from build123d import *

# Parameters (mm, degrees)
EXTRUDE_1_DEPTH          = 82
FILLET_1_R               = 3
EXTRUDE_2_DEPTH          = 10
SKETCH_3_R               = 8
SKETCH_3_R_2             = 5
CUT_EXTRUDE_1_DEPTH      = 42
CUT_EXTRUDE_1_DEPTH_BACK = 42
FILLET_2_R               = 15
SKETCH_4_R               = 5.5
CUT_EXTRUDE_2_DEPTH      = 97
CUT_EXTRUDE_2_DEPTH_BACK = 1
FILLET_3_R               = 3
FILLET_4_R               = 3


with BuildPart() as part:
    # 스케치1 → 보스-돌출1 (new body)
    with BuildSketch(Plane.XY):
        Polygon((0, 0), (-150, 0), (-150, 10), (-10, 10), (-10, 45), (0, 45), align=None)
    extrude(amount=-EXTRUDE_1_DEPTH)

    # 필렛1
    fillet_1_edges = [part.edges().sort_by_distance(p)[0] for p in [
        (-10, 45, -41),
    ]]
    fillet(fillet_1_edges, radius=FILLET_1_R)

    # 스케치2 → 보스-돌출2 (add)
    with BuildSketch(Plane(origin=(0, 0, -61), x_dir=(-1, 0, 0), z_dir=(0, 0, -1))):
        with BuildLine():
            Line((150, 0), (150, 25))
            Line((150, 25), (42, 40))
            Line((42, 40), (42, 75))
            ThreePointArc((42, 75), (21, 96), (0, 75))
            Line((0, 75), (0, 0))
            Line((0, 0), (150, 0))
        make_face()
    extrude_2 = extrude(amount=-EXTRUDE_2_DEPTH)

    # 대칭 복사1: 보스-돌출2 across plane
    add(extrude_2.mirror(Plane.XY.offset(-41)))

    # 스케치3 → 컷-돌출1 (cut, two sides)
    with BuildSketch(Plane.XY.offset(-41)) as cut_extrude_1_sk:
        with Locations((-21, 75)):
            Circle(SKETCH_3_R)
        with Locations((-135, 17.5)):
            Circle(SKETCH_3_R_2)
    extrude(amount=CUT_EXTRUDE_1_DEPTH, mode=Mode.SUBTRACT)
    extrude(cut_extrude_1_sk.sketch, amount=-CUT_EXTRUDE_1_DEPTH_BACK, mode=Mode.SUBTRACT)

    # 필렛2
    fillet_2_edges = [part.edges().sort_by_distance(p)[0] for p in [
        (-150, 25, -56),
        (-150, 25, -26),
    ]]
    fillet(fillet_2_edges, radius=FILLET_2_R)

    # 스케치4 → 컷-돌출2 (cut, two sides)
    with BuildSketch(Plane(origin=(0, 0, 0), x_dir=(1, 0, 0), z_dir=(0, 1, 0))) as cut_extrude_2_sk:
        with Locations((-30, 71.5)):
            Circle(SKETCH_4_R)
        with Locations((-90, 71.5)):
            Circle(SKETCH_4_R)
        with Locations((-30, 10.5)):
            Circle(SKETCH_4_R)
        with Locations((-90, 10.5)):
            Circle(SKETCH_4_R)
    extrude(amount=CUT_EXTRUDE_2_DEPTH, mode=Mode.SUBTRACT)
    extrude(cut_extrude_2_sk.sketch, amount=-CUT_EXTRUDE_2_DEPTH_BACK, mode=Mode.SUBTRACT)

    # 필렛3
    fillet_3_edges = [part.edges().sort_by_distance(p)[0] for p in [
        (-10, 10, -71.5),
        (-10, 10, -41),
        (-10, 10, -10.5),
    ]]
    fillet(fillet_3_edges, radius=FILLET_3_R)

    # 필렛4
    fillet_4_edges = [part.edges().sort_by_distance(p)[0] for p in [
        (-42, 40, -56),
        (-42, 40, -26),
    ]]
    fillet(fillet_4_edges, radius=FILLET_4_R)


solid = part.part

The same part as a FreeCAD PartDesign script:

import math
import FreeCAD as App
import Part
import Sketcher

V = App.Vector


def edges_at(feature, points):
    """Names of the edges that pass closest to the given points."""
    edges = feature.Shape.Edges
    near = lambda p: min(range(len(edges)), key=lambda i: edges[i].distToShape(Part.Vertex(*p))[0])
    return sorted({f"Edge{near(p) + 1}" for p in points})


def add_polygon(sketch, points):
    """Adds a closed chain of lines whose ends are joined by coincident constraints."""
    first, n = sketch.GeometryCount, len(points)
    for a, b in zip(points, points[1:] + points[:1]):
        sketch.addGeometry(Part.LineSegment(App.Vector(*a, 0), App.Vector(*b, 0)), False)
    for i in range(n):
        sketch.addConstraint(Sketcher.Constraint("Coincident", first + i, 2, first + (i + 1) % n, 1))

doc = App.newDocument("Part")
params = doc.addObject("Spreadsheet::Sheet", "Params")
for row, (alias, value) in enumerate([
    ("sketch1_width", "150 mm"),
    ("sketch1_width2", "10 mm"),
    ("sketch1_height", "45 mm"),
    ("pad1_length", "82 mm"),
    ("fillet_radius", "3 mm"),
    ("sketch2_radius", "21 mm"),
    ("sketch2_width", "150 mm"),
    ("sketch2_height", "25 mm"),
    ("sketch2_height2", "35 mm"),
    ("sketch2_height3", "75 mm"),
    ("pad2_length", "10 mm"),
    ("sketch3_diameter", "16 mm"),
    ("sketch3_diameter2", "10 mm"),
    ("fillet2_radius", "15 mm"),
    ("sketch4_diameter", "11 mm"),
    ("fillet3_radius", "3 mm"),
    ("fillet4_radius", "3 mm"),
], start=1):
    params.set(f"A{row}", alias)
    params.set(f"B{row}", "=" + value)
    params.setAlias(f"B{row}", alias)

body = doc.addObject("PartDesign::Body", "Body")

sketch1 = body.newObject("Sketcher::SketchObject", "Sketch")
sketch1.AttachmentSupport = (doc.getObject("XY_Plane"), [""])
sketch1.MapMode = "FlatFace"
add_polygon(sketch1, [(-150, 0), (0, 0), (0, 45), (-10, 45), (-10, 10), (-150, 10)])
sketch1.addConstraint([
    Sketcher.Constraint("Horizontal", 0),
    Sketcher.Constraint("Vertical", 1),
    Sketcher.Constraint("Horizontal", 2),
    Sketcher.Constraint("Vertical", 3),
    Sketcher.Constraint("Horizontal", 4),
    Sketcher.Constraint("Vertical", 5),
    Sketcher.Constraint("Coincident", 0, 2, -1, 1),
    Sketcher.Constraint("Equal", 2, 5),
    Sketcher.Constraint("DistanceX", 0, 1, 0, 2, 150.0),
    Sketcher.Constraint("DistanceX", 2, 2, 2, 1, 10.0),
    Sketcher.Constraint("DistanceY", 1, 1, 1, 2, 45.0),
])
sketch1.setExpression("Constraints[14]", "Params.sketch1_width")
sketch1.setExpression("Constraints[15]", "Params.sketch1_width2")
sketch1.setExpression("Constraints[16]", "Params.sketch1_height")
pad1 = body.newObject("PartDesign::Pad", "Pad")
pad1.Profile = sketch1
pad1.setExpression("Length", "Params.pad1_length")
pad1.Reversed = True
doc.recompute()

fillet = body.newObject("PartDesign::Fillet", "Fillet")
fillet.Base = (pad1, edges_at(pad1, [(-10, 45, -41)]))
fillet.setExpression("Radius", "Params.fillet_radius")

sketch2 = body.newObject("Sketcher::SketchObject", "Sketch001")
sketch2.AttachmentSupport = (doc.getObject("XY_Plane"), [""])
sketch2.MapMode = "FlatFace"
sketch2.AttachmentOffset = App.Placement(V(0, 0, -61), App.Rotation())
sketch2.addGeometry([
    Part.LineSegment(V(-150, 0, 0), V(-150, 25, 0)),
    Part.LineSegment(V(-150, 25, 0), V(-42, 40, 0)),
    Part.LineSegment(V(-42, 40, 0), V(-42, 75, 0)),
    Part.ArcOfCircle(Part.Circle(V(-21, 75, 0), V(0, 0, 1), 21), math.radians(0), math.radians(180)),
    Part.LineSegment(V(0, 75, 0), V(0, 0, 0)),
    Part.LineSegment(V(0, 0, 0), V(-150, 0, 0)),
], False)
sketch2.addConstraint([
    Sketcher.Constraint("Coincident", 0, 2, 1, 1),
    Sketcher.Constraint("Coincident", 1, 2, 2, 1),
    Sketcher.Constraint("Tangent", 2, 2, 3, 2),
    Sketcher.Constraint("Tangent", 3, 1, 4, 1),
    Sketcher.Constraint("Coincident", 4, 2, 5, 1),
    Sketcher.Constraint("Coincident", 5, 2, 0, 1),
    Sketcher.Constraint("Vertical", 0),
    Sketcher.Constraint("Vertical", 2),
    Sketcher.Constraint("Vertical", 4),
    Sketcher.Constraint("Horizontal", 5),
    Sketcher.Constraint("Coincident", 4, 2, -1, 1),
    Sketcher.Constraint("Radius", 3, 21.0),
    Sketcher.Constraint("DistanceX", 5, 2, 5, 1, 150.0),
    Sketcher.Constraint("DistanceY", 0, 1, 0, 2, 25.0),
    Sketcher.Constraint("DistanceY", 2, 1, 2, 2, 35.0),
    Sketcher.Constraint("DistanceY", 4, 2, 4, 1, 75.0),
])
sketch2.setExpression("Constraints[11]", "Params.sketch2_radius")
sketch2.setExpression("Constraints[12]", "Params.sketch2_width")
sketch2.setExpression("Constraints[13]", "Params.sketch2_height")
sketch2.setExpression("Constraints[14]", "Params.sketch2_height2")
sketch2.setExpression("Constraints[15]", "Params.sketch2_height3")
pad2 = body.newObject("PartDesign::Pad", "Pad001")
pad2.Profile = sketch2
pad2.setExpression("Length", "Params.pad2_length")
doc.recompute()

datumplane = body.newObject("PartDesign::Plane", "DatumPlane")
datumplane.AttachmentSupport = (doc.getObject("XY_Plane"), [""])
datumplane.MapMode = "FlatFace"
datumplane.AttachmentOffset = App.Placement(V(0, 0, -41), App.Rotation())
mirrored = body.newObject("PartDesign::Mirrored", "Mirrored")
mirrored.Originals = [pad2]
mirrored.MirrorPlane = (datumplane, [""])
body.Tip = mirrored

sketch3 = body.newObject("Sketcher::SketchObject", "Sketch002")
sketch3.AttachmentSupport = (doc.getObject("XY_Plane"), [""])
sketch3.MapMode = "FlatFace"
sketch3.AttachmentOffset = App.Placement(V(0, 0, -41), App.Rotation())
sketch3.addGeometry([
    Part.Circle(V(-21, 75, 0), V(0, 0, 1), 8),
    Part.Circle(V(-135, 18, 0), V(0, 0, 1), 5),
], False)
sketch3.addConstraint([
    Sketcher.Constraint("Diameter", 0, 16.0),
    Sketcher.Constraint("Diameter", 1, 10.0),
    Sketcher.Constraint("DistanceX", 0, 3, -1, 1, 21.0),
    Sketcher.Constraint("DistanceY", -1, 1, 0, 3, 75.0),
    Sketcher.Constraint("DistanceX", 1, 3, -1, 1, 135.0),
    Sketcher.Constraint("DistanceY", -1, 1, 1, 3, 17.5),
])
sketch3.setExpression("Constraints[0]", "Params.sketch3_diameter")
sketch3.setExpression("Constraints[1]", "Params.sketch3_diameter2")
pocket1 = body.newObject("PartDesign::Pocket", "Pocket")
pocket1.Profile = sketch3
pocket1.Type = "ThroughAll"
pocket1.Midplane = True
doc.recompute()

fillet2 = body.newObject("PartDesign::Fillet", "Fillet001")
fillet2.Base = (pocket1, edges_at(pocket1, [(-150, 25, -56), (-150, 25, -26)]))
fillet2.setExpression("Radius", "Params.fillet2_radius")

sketch4 = body.newObject("Sketcher::SketchObject", "Sketch003")
sketch4.AttachmentSupport = (doc.getObject("XZ_Plane"), [""])
sketch4.MapMode = "FlatFace"
sketch4.addGeometry([
    Part.Circle(V(-30, -72, 0), V(0, 0, 1), 6),
    Part.Circle(V(-90, -72, 0), V(0, 0, 1), 6),
    Part.Circle(V(-30, -10, 0), V(0, 0, 1), 6),
    Part.Circle(V(-90, -10, 0), V(0, 0, 1), 6),
], False)
sketch4.addConstraint([
    Sketcher.Constraint("Equal", 0, 1),
    Sketcher.Constraint("Equal", 1, 2),
    Sketcher.Constraint("Equal", 2, 3),
    Sketcher.Constraint("Horizontal", 0, 3, 1, 3),
    Sketcher.Constraint("Horizontal", 2, 3, 3, 3),
    Sketcher.Constraint("Vertical", 0, 3, 2, 3),
    Sketcher.Constraint("Vertical", 1, 3, 3, 3),
    Sketcher.Constraint("Diameter", 0, 11.0),
    Sketcher.Constraint("DistanceX", 0, 3, -1, 1, 30.0),
    Sketcher.Constraint("DistanceX", 1, 3, -1, 1, 90.0),
    Sketcher.Constraint("DistanceY", 0, 3, 2, 3, 61.0),
    Sketcher.Constraint("DistanceY", 0, 3, -1, 1, 71.5),
])
sketch4.setExpression("Constraints[7]", "Params.sketch4_diameter")
pocket2 = body.newObject("PartDesign::Pocket", "Pocket001")
pocket2.Profile = sketch4
pocket2.Type = "ThroughAll"
pocket2.Midplane = True
doc.recompute()

fillet3 = body.newObject("PartDesign::Fillet", "Fillet002")
fillet3.Base = (pocket2, edges_at(pocket2, [(-10, 10, -71.5), (-10, 10, -41), (-10, 10, -10.5)]))
fillet3.setExpression("Radius", "Params.fillet3_radius")
doc.recompute()

fillet4 = body.newObject("PartDesign::Fillet", "Fillet003")
fillet4.Base = (fillet3, edges_at(fillet3, [(-42, 40, -56), (-42, 40, -26)]))
fillet4.setExpression("Radius", "Params.fillet4_radius")

doc.recompute()
